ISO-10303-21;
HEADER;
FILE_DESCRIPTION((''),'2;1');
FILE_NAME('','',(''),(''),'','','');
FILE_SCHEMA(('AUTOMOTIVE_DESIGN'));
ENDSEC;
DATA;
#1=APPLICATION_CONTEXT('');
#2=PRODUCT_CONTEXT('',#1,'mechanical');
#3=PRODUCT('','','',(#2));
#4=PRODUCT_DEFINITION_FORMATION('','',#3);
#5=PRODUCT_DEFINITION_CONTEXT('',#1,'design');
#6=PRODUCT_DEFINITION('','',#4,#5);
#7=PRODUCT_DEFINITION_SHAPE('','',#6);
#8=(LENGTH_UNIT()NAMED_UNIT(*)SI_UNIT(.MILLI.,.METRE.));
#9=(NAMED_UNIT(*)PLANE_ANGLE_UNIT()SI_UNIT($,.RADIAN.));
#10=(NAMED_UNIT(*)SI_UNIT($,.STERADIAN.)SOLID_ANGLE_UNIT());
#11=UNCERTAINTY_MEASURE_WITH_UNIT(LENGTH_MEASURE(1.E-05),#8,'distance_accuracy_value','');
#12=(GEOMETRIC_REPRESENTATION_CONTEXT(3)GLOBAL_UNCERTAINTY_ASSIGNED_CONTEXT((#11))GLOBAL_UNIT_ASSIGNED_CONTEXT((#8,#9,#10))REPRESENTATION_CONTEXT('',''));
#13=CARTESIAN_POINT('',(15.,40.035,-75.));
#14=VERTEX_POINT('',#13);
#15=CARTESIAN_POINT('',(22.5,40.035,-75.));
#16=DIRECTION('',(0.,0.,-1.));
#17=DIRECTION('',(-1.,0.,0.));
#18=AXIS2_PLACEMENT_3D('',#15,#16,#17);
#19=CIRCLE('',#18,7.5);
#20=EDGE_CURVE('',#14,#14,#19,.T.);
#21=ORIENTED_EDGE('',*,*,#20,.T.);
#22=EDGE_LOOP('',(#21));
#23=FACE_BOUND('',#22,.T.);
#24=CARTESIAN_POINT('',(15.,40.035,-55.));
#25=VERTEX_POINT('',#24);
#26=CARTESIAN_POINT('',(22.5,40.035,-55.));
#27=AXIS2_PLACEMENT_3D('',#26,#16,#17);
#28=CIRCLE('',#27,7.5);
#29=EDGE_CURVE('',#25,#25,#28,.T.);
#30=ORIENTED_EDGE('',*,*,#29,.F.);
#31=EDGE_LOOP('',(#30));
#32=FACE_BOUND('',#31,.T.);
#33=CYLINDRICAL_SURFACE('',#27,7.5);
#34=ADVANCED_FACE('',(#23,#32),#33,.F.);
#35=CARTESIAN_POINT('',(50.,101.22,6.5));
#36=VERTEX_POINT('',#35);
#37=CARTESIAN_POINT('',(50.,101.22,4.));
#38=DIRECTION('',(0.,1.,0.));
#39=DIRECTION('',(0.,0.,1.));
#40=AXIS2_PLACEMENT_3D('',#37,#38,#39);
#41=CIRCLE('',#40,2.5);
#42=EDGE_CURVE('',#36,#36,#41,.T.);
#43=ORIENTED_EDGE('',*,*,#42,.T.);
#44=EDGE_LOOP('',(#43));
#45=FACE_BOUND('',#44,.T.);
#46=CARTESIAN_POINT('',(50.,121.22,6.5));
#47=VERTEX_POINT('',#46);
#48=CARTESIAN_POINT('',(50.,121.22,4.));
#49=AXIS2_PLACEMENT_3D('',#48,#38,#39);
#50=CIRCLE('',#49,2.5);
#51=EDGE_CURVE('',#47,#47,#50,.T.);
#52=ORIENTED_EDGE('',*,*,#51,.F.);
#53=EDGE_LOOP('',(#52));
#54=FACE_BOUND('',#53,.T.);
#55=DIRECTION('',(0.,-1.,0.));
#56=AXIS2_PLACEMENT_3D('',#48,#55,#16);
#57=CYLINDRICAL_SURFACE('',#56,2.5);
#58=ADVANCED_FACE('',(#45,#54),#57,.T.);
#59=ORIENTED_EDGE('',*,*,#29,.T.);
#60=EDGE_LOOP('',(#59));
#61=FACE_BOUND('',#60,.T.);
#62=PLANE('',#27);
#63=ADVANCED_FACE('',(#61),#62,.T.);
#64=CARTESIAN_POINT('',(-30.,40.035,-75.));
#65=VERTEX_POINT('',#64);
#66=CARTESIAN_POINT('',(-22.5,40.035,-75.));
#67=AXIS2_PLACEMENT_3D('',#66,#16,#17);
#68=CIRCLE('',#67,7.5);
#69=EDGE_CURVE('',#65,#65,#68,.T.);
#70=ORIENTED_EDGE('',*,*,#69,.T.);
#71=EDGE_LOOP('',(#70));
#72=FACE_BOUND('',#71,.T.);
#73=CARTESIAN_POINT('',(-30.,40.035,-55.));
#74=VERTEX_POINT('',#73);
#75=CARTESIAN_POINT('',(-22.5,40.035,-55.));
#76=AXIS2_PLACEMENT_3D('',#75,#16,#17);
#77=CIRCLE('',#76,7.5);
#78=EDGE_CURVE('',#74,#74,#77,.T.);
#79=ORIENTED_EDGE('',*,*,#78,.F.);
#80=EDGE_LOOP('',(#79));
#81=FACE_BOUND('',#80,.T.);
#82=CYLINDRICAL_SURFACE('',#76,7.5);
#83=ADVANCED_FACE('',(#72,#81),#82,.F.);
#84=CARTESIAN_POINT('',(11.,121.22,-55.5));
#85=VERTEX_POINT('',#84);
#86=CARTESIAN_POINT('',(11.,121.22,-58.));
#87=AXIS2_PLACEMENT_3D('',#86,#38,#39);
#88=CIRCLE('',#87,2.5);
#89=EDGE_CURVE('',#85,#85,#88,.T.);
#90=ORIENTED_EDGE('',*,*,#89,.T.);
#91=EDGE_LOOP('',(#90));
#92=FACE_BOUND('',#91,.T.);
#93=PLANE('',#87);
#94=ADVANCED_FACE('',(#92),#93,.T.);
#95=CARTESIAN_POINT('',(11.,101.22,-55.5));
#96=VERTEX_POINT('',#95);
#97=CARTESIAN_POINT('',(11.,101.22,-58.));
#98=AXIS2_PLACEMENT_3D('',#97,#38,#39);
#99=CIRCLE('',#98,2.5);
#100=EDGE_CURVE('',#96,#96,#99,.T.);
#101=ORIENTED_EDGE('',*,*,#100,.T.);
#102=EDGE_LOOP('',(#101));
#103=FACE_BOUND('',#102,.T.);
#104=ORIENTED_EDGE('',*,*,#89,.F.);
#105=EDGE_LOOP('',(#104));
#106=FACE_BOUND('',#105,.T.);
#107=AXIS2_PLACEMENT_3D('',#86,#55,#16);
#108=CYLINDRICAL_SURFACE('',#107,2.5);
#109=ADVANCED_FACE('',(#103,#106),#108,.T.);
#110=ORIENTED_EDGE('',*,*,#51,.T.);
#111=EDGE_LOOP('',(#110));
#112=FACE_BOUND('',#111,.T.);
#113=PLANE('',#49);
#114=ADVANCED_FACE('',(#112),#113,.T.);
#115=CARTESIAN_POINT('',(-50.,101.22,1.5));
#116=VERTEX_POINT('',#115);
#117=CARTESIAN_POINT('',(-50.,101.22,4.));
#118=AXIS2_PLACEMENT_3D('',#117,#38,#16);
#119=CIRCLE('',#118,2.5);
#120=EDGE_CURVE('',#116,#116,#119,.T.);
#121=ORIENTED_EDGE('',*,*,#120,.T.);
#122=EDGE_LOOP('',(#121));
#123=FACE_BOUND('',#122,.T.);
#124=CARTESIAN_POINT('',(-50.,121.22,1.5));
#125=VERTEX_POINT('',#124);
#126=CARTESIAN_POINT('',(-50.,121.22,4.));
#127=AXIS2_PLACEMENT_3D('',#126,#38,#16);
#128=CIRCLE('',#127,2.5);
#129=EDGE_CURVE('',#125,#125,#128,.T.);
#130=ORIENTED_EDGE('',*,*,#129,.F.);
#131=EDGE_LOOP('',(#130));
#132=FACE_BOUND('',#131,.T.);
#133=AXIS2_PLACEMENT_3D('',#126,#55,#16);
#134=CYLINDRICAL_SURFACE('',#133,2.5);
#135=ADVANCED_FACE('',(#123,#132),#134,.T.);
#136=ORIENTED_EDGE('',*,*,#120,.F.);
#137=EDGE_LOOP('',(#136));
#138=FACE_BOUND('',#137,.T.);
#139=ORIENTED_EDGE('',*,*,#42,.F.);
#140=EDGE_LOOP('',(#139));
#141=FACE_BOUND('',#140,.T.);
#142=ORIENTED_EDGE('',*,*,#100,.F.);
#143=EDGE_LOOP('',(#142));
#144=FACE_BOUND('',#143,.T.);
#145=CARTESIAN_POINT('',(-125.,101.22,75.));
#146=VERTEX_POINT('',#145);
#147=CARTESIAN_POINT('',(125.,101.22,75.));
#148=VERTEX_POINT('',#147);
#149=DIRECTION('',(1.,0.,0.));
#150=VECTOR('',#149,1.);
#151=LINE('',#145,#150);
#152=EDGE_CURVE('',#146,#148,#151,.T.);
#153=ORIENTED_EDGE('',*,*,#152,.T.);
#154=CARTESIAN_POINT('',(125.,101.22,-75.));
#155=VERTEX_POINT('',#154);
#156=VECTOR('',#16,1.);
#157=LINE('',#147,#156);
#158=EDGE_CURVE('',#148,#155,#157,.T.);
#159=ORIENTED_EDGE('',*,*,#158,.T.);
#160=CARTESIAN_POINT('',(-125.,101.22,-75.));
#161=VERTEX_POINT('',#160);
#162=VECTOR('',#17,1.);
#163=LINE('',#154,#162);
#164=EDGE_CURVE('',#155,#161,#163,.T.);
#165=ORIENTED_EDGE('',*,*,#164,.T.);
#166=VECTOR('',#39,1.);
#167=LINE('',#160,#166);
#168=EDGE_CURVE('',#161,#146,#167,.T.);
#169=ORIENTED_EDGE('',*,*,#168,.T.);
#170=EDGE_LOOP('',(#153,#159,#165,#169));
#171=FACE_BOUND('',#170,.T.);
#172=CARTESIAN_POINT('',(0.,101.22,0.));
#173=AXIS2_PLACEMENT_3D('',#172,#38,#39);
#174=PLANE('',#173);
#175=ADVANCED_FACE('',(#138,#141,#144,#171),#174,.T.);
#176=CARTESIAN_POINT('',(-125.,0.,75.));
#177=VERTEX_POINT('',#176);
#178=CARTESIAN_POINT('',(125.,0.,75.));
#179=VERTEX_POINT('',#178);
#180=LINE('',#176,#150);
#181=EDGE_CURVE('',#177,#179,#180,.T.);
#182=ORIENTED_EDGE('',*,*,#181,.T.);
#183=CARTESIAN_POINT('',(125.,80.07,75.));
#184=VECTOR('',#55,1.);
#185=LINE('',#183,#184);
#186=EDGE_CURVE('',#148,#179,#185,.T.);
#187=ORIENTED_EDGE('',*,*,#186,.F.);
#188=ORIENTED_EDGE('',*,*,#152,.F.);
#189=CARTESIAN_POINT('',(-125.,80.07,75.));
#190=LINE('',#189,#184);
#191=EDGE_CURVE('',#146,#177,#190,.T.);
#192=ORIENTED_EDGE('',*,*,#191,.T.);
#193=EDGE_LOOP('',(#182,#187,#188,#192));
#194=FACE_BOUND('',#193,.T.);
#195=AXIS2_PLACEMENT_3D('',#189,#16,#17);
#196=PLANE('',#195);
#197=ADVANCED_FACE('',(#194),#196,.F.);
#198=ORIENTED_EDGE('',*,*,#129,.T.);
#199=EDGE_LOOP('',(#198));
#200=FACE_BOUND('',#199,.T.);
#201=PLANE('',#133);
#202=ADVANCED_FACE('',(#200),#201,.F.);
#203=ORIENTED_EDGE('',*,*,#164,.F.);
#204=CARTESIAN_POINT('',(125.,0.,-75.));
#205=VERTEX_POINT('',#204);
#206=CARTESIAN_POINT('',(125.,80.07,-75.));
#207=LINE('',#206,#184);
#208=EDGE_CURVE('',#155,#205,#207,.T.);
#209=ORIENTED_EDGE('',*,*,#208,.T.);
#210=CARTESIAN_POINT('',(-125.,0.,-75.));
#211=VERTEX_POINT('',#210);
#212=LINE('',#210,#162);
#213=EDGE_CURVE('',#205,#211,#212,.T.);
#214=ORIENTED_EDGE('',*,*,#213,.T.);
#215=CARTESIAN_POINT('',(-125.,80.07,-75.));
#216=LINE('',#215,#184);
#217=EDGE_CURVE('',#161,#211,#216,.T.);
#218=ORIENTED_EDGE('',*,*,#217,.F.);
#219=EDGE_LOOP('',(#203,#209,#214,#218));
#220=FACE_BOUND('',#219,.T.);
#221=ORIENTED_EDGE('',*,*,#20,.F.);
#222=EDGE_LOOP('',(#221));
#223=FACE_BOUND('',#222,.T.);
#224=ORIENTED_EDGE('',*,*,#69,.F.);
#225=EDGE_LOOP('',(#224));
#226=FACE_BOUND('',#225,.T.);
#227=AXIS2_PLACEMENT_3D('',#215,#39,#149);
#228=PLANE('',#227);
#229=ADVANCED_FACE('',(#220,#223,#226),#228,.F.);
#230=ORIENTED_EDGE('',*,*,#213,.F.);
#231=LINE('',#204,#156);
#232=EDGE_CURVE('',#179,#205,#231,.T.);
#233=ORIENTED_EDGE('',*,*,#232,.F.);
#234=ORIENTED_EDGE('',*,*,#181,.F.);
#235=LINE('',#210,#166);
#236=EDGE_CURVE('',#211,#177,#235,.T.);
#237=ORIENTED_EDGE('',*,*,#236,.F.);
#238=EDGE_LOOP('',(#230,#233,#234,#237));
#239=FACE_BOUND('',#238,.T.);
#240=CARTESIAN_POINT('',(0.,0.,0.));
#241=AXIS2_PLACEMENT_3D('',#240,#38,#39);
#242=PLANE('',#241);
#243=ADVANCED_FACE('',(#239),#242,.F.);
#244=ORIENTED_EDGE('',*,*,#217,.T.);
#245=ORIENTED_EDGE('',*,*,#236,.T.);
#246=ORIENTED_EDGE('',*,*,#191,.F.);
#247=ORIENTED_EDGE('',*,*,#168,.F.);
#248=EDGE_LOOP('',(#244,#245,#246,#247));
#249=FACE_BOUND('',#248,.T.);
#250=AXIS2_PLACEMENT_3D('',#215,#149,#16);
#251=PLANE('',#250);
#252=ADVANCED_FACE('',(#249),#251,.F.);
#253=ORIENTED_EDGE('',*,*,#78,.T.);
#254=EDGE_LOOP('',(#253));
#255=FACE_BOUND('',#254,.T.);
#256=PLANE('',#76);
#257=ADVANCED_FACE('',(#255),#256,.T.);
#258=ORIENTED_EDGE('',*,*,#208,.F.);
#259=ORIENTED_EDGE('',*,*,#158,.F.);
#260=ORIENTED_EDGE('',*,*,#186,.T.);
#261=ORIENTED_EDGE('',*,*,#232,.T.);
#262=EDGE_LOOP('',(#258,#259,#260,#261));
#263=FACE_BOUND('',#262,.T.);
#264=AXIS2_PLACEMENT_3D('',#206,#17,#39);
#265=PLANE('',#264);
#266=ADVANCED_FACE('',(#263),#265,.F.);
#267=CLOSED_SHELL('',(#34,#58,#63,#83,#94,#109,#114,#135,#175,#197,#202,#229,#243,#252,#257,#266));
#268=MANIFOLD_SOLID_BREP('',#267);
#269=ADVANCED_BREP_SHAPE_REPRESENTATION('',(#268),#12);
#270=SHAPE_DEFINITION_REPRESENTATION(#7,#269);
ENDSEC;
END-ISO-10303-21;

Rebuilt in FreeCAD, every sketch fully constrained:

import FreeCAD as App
import Part
import Sketcher

V = App.Vector


def add_polygon(sketch, points):
    """Adds a closed chain of lines whose ends are joined by coincident constraints."""
    first, n = sketch.GeometryCount, len(points)
    for a, b in zip(points, points[1:] + points[:1]):
        sketch.addGeometry(Part.LineSegment(App.Vector(*a, 0), App.Vector(*b, 0)), False)
    for i in range(n):
        sketch.addConstraint(Sketcher.Constraint("Coincident", first + i, 2, first + (i + 1) % n, 1))

doc = App.newDocument("Part")
body = doc.addObject("PartDesign::Body", "Body")

sketch1 = body.newObject("Sketcher::SketchObject", "Sketch")
sketch1.AttachmentSupport = (doc.getObject("XZ_Plane"), [""])
sketch1.MapMode = "FlatFace"
add_polygon(sketch1, [(-125, -75), (-125, 75), (125, 75), (125, -75)])
sketch1.addConstraint(Sketcher.Constraint("Vertical", 0))
sketch1.addConstraint(Sketcher.Constraint("Horizontal", 1))
sketch1.addConstraint(Sketcher.Constraint("Vertical", 2))
sketch1.addConstraint(Sketcher.Constraint("Horizontal", 3))
sketch1.addConstraint(Sketcher.Constraint("Symmetric", 0, 2, 2, 2, -1, 1))
sketch1.addConstraint(Sketcher.Constraint("DistanceX", 1, 1, 1, 2, 250.0))
sketch1.addConstraint(Sketcher.Constraint("DistanceY", 0, 1, 0, 2, 150.0))
pad1 = body.newObject("PartDesign::Pad", "Pad")
pad1.Profile = sketch1
pad1.Length = 80.07
pad1.Reversed = True

sketch2 = body.newObject("Sketcher::SketchObject", "Sketch001")
sketch2.AttachmentSupport = (doc.getObject("XY_Plane"), [""])
sketch2.MapMode = "FlatFace"
sketch2.AttachmentOffset = App.Placement(V(0, 0, -75), App.Rotation())
sketch2.addGeometry(Part.Circle(V(22.5, 40.035, 0), V(0, 0, 1), 7.5), False)
sketch2.addGeometry(Part.Circle(V(-22.5, 40.035, 0), V(0, 0, 1), 7.5), False)
sketch2.addConstraint(Sketcher.Constraint("Equal", 0, 1))
sketch2.addConstraint(Sketcher.Constraint("Symmetric", 0, 3, 1, 3, -2))
sketch2.addConstraint(Sketcher.Constraint("Diameter", 0, 15.0))
sketch2.addConstraint(Sketcher.Constraint("DistanceX", 1, 3, 0, 3, 45.0))
sketch2.addConstraint(Sketcher.Constraint("DistanceY", -1, 1, 0, 3, 40.035))
pocket1 = body.newObject("PartDesign::Pocket", "Pocket")
pocket1.Profile = sketch2
pocket1.Length = 20
pocket1.Reversed = True

sketch3 = body.newObject("Sketcher::SketchObject", "Sketch002")
sketch3.AttachmentSupport = (doc.getObject("XZ_Plane"), [""])
sketch3.MapMode = "FlatFace"
sketch3.AttachmentOffset = App.Placement(V(0, 0, -80.07), App.Rotation())
add_polygon(sketch3, [(-125, -75), (-125, 75), (125, 75), (125, -75)])
sketch3.addConstraint(Sketcher.Constraint("Vertical", 0))
sketch3.addConstraint(Sketcher.Constraint("Horizontal", 1))
sketch3.addConstraint(Sketcher.Constraint("Vertical", 2))
sketch3.addConstraint(Sketcher.Constraint("Horizontal", 3))
sketch3.addConstraint(Sketcher.Constraint("Symmetric", 0, 2, 2, 2, -1, 1))
sketch3.addConstraint(Sketcher.Constraint("DistanceX", 1, 1, 1, 2, 250.0))
sketch3.addConstraint(Sketcher.Constraint("DistanceY", 0, 1, 0, 2, 150.0))
pad2 = body.newObject("PartDesign::Pad", "Pad001")
pad2.Profile = sketch3
pad2.Length = 21.15
pad2.Reversed = True

sketch4 = body.newObject("Sketcher::SketchObject", "Sketch003")
sketch4.AttachmentSupport = (doc.getObject("XZ_Plane"), [""])
sketch4.MapMode = "FlatFace"
sketch4.AttachmentOffset = App.Placement(V(0, 0, -101.22), App.Rotation())
sketch4.addGeometry(Part.Circle(V(11, -58, 0), V(0, 0, 1), 2.5), False)
sketch4.addConstraint(Sketcher.Constraint("Diameter", 0, 5.0))
sketch4.addConstraint(Sketcher.Constraint("DistanceX", -1, 1, 0, 3, 11.0))
sketch4.addConstraint(Sketcher.Constraint("DistanceY", 0, 3, -1, 1, 58.0))
pad3 = body.newObject("PartDesign::Pad", "Pad002")
pad3.Profile = sketch4
pad3.Length = 20
pad3.Reversed = True

sketch5 = body.newObject("Sketcher::SketchObject", "Sketch004")
sketch5.AttachmentSupport = (doc.getObject("XZ_Plane"), [""])
sketch5.MapMode = "FlatFace"
sketch5.AttachmentOffset = App.Placement(V(0, 0, -101.22), App.Rotation())
sketch5.addGeometry(Part.Circle(V(50, 4, 0), V(0, 0, 1), 2.5), False)
sketch5.addGeometry(Part.Circle(V(-50, 4, 0), V(0, 0, 1), 2.5), False)
sketch5.addConstraint(Sketcher.Constraint("Equal", 0, 1))
sketch5.addConstraint(Sketcher.Constraint("Symmetric", 0, 3, 1, 3, -2))
sketch5.addConstraint(Sketcher.Constraint("Diameter", 0, 5.0))
sketch5.addConstraint(Sketcher.Constraint("DistanceX", -1, 1, 0, 3, 50.0))
sketch5.addConstraint(Sketcher.Constraint("DistanceY", -1, 1, 0, 3, 4.0))
pad4 = body.newObject("PartDesign::Pad", "Pad003")
pad4.Profile = sketch5
pad4.Length = 20
pad4.Reversed = True

doc.recompute()
